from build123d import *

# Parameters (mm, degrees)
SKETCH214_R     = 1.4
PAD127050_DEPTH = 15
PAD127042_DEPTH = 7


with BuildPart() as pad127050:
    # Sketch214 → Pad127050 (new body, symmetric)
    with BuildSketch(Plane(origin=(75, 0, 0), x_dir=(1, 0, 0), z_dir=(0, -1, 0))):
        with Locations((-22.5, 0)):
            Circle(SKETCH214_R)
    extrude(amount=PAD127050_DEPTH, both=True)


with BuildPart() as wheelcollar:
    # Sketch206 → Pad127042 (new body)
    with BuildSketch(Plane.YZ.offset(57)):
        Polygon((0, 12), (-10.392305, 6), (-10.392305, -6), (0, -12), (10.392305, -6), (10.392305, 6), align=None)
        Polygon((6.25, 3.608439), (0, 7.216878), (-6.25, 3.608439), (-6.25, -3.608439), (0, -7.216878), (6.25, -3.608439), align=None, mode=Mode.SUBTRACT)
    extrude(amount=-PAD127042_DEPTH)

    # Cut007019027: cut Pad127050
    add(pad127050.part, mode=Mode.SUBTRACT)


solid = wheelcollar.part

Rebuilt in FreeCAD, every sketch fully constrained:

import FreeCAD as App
import Part
import Sketcher

V = App.Vector
Q = App.Units.Quantity

doc = App.newDocument("Part")
body = doc.addObject("PartDesign::Body", "Body")

sketch1 = body.newObject("Sketcher::SketchObject", "Sketch")
sketch1.AttachmentSupport = (doc.getObject("XZ_Plane"), [""])
sketch1.MapMode = "FlatFace"
sketch1.addGeometry(Part.Circle(V(52.5, 0, 0), V(0, 0, 1), 1.4), False)
sketch1.addConstraint([
    Sketcher.Constraint("PointOnObject", 0, 3, -1),
    Sketcher.Constraint("Diameter", 0, 2.8),
    Sketcher.Constraint("DistanceX", -1, 1, 0, 3, 52.5),
])
pad1 = body.newObject("PartDesign::Pad", "Pad")
pad1.Profile = sketch1
pad1.Length = 30
pad1.Midplane = True
body2 = doc.addObject("PartDesign::Body", "Body001")

sketch2 = body2.newObject("Sketcher::SketchObject", "Sketch001")
sketch2.AttachmentSupport = (doc.getObject("YZ_Plane001"), [""])
sketch2.MapMode = "FlatFace"
sketch2.AttachmentOffset = App.Placement(V(0, 0, 57), App.Rotation())
sketch2.addGeometry([
    Part.LineSegment(V(0, 12, 0), V(-10, 6, 0)),
    Part.LineSegment(V(-10, 6, 0), V(-10, -6, 0)),
    Part.LineSegment(V(-10, -6, 0), V(0, -12, 0)),
    Part.LineSegment(V(0, -12, 0), V(10, -6, 0)),
    Part.LineSegment(V(10, -6, 0), V(10, 6, 0)),
    Part.LineSegment(V(10, 6, 0), V(0, 12, 0)),
    Part.LineSegment(V(0, 7, 0), V(6, 4, 0)),
    Part.LineSegment(V(6, 4, 0), V(6, -4, 0)),
    Part.LineSegment(V(6, -4, 0), V(0, -7, 0)),
    Part.LineSegment(V(0, -7, 0), V(-6, -4, 0)),
    Part.LineSegment(V(-6, -4, 0), V(-6, 4, 0)),
    Part.LineSegment(V(-6, 4, 0), V(0, 7, 0)),
], False)
sketch2.addConstraint([
    Sketcher.Constraint("Coincident", 0, 2, 1, 1),
    Sketcher.Constraint("Coincident", 1, 2, 2, 1),
    Sketcher.Constraint("Coincident", 2, 2, 3, 1),
    Sketcher.Constraint("Coincident", 3, 2, 4, 1),
    Sketcher.Constraint("Coincident", 4, 2, 5, 1),
    Sketcher.Constraint("Coincident", 5, 2, 0, 1),
    Sketcher.Constraint("Coincident", 6, 2, 7, 1),
    Sketcher.Constraint("Coincident", 7, 2, 8, 1),
    Sketcher.Constraint("Coincident", 8, 2, 9, 1),
    Sketcher.Constraint("Coincident", 9, 2, 10, 1),
    Sketcher.Constraint("Coincident", 10, 2, 11, 1),
    Sketcher.Constraint("Coincident", 11, 2, 6, 1),
    Sketcher.Constraint("Vertical", 1),
    Sketcher.Constraint("Vertical", 4),
    Sketcher.Constraint("Vertical", 7),
    Sketcher.Constraint("Vertical", 10),
    Sketcher.Constraint("Symmetric", 0, 2, 3, 2, -1, 1),
    Sketcher.Constraint("Symmetric", 2, 2, 5, 2, -1, 1),
    Sketcher.Constraint("Symmetric", 6, 2, 9, 2, -1, 1),
    Sketcher.Constraint("Symmetric", 8, 2, 11, 2, -1, 1),
    Sketcher.Constraint("PointOnObject", 2, 2, -2),
    Sketcher.Constraint("PointOnObject", 8, 2, -2),
    Sketcher.Constraint("Parallel", 2, 5),
    Sketcher.Constraint("Parallel", 5, 6),
    Sketcher.Constraint("Parallel", 3, 8),
    Sketcher.Constraint("Parallel", 8, 11),
    Sketcher.Constraint("Horizontal", 1, 2, 3, 2),
    Sketcher.Constraint("DistanceY", 1, 2, 1, 1, 12.0),
    Sketcher.Constraint("Angle", 0, Q("-150 deg")),
    Sketcher.Constraint("Distance", 0, 12.0),
    Sketcher.Constraint("DistanceX", 9, 2, 7, 2, 12.5),
    Sketcher.Constraint("DistanceY", 7, 2, 7, 1, 7.216878),
])
pad2 = body2.newObject("PartDesign::Pad", "Pad001")
pad2.Profile = sketch2
pad2.Length = 7
pad2.Reversed = True
doc.recompute()

boolean = body2.newObject("PartDesign::Boolean", "Boolean")
boolean.Type = "Cut"
boolean.addObjects([body])

doc.recompute()
